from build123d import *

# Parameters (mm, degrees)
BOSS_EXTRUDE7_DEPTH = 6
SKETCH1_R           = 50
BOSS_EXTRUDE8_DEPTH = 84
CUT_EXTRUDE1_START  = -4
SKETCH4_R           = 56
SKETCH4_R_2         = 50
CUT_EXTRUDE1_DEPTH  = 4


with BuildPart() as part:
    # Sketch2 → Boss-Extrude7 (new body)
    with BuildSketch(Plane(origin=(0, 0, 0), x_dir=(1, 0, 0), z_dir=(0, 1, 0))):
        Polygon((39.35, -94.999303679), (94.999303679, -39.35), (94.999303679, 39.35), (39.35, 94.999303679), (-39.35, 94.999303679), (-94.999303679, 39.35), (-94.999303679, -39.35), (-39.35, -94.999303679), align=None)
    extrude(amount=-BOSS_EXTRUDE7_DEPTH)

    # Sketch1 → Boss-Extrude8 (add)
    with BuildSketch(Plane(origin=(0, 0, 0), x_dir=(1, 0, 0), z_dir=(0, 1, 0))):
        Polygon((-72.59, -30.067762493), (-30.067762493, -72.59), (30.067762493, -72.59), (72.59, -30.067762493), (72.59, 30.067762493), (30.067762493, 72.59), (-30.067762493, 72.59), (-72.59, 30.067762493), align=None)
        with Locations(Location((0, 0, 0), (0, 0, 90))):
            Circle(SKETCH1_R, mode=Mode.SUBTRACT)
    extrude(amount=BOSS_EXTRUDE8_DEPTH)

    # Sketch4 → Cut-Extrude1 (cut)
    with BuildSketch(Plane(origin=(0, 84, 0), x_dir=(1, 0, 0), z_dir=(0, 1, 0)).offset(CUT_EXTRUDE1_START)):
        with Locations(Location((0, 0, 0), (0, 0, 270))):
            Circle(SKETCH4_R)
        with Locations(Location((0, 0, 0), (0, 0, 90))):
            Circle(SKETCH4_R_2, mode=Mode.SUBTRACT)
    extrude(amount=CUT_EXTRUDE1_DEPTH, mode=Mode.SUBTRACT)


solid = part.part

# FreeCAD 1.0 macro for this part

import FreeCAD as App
import Part
import Sketcher
from FreeCAD import Vector

doc = App.newDocument("Part")
body = doc.addObject("PartDesign::Body", "Body")

sketch1 = body.newObject("Sketcher::SketchObject", "Sketch")
sketch1.AttachmentSupport = (doc.getObject("XZ_Plane"), [""])
sketch1.MapMode = "FlatFace"
sketch1.addGeometry([
    Part.LineSegment(Vector(39, 95, 0), Vector(95, 39, 0)),
    Part.LineSegment(Vector(95, 39, 0), Vector(95, -39, 0)),
    Part.LineSegment(Vector(95, -39, 0), Vector(39, -95, 0)),
    Part.LineSegment(Vector(39, -95, 0), Vector(-39, -95, 0)),
    Part.LineSegment(Vector(-39, -95, 0), Vector(-95, -39, 0)),
    Part.LineSegment(Vector(-95, -39, 0), Vector(-95, 39, 0)),
    Part.LineSegment(Vector(-95, 39, 0), Vector(-39, 95, 0)),
    Part.LineSegment(Vector(-39, 95, 0), Vector(39, 95, 0)),
], False)
sketch1.addConstraint([
    Sketcher.Constraint("Coincident", 0, 2, 1, 1),
    Sketcher.Constraint("Coincident", 1, 2, 2, 1),
    Sketcher.Constraint("Coincident", 2, 2, 3, 1),
    Sketcher.Constraint("Coincident", 3, 2, 4, 1),
    Sketcher.Constraint("Coincident", 4, 2, 5, 1),
    Sketcher.Constraint("Coincident", 5, 2, 6, 1),
    Sketcher.Constraint("Coincident", 6, 2, 7, 1),
    Sketcher.Constraint("Coincident", 7, 2, 0, 1),
    Sketcher.Constraint("Vertical", 1),
    Sketcher.Constraint("Horizontal", 3),
    Sketcher.Constraint("Vertical", 5),
    Sketcher.Constraint("Horizontal", 7),
    Sketcher.Constraint("Symmetric", 0, 2, 4, 2, -1, 1),
    Sketcher.Constraint("Symmetric", 2, 2, 6, 2, -1, 1),
    Sketcher.Constraint("Perpendicular", 0, 2),
    Sketcher.Constraint("Perpendicular", 2, 4),
    Sketcher.Constraint("Perpendicular", 4, 6),
    Sketcher.Constraint("Horizontal", 1, 2, 4, 2),
    Sketcher.Constraint("Vertical", 3, 2, 6, 2),
    Sketcher.Constraint("Equal", 7, 1),
    Sketcher.Constraint("DistanceX", 3, 2, 3, 1, 78.7),
    Sketcher.Constraint("Distance", 0, 78.7),
])
pad1 = body.newObject("PartDesign::Pad", "Pad")
pad1.Profile = sketch1
pad1.Length = 6

sketch2 = body.newObject("Sketcher::SketchObject", "Sketch001")
sketch2.AttachmentSupport = (doc.getObject("XZ_Plane"), [""])
sketch2.MapMode = "FlatFace"
sketch2.addGeometry([
    Part.LineSegment(Vector(-73, 30, 0), Vector(-30, 73, 0)),
    Part.LineSegment(Vector(-30, 73, 0), Vector(30, 73, 0)),
    Part.LineSegment(Vector(30, 73, 0), Vector(73, 30, 0)),
    Part.LineSegment(Vector(73, 30, 0), Vector(73, -30, 0)),
    Part.LineSegment(Vector(73, -30, 0), Vector(30, -73, 0)),
    Part.LineSegment(Vector(30, -73, 0), Vector(-30, -73, 0)),
    Part.LineSegment(Vector(-30, -73, 0), Vector(-73, -30, 0)),
    Part.LineSegment(Vector(-73, -30, 0), Vector(-73, 30, 0)),
    Part.Circle(Vector(0, 0, 0), Vector(0, 0, 1), 50),
], False)
sketch2.addConstraint([
    Sketcher.Constraint("Coincident", 0, 2, 1, 1),
    Sketcher.Constraint("Coincident", 1, 2, 2, 1),
    Sketcher.Constraint("Coincident", 2, 2, 3, 1),
    Sketcher.Constraint("Coincident", 3, 2, 4, 1),
    Sketcher.Constraint("Coincident", 4, 2, 5, 1),
    Sketcher.Constraint("Coincident", 5, 2, 6, 1),
    Sketcher.Constraint("Coincident", 6, 2, 7, 1),
    Sketcher.Constraint("Coincident", 7, 2, 0, 1),
    Sketcher.Constraint("Horizontal", 1),
    Sketcher.Constraint("Vertical", 3),
    Sketcher.Constraint("Horizontal", 5),
    Sketcher.Constraint("Vertical", 7),
    Sketcher.Constraint("Coincident", 8, 3, -1, 1),
    Sketcher.Constraint("Symmetric", 0, 2, 4, 2, -1, 1),
    Sketcher.Constraint("Symmetric", 2, 2, 6, 2, -1, 1),
    Sketcher.Constraint("Perpendicular", 0, 2),
    Sketcher.Constraint("Perpendicular", 2, 4),
    Sketcher.Constraint("Perpendicular", 4, 6),
    Sketcher.Constraint("Horizontal", 3, 2, 6, 2),
    Sketcher.Constraint("Vertical", 1, 2, 4, 2),
    Sketcher.Constraint("Equal", 5, 3),
    Sketcher.Constraint("Diameter", 8, 100.0),
    Sketcher.Constraint("DistanceY", -1, 1, 0, 2, 72.59),
    Sketcher.Constraint("DistanceX", 1, 1, 1, 2, 60.135525),
])
pad2 = body.newObject("PartDesign::Pad", "Pad001")
pad2.Profile = sketch2
pad2.Length = 84
pad2.Reversed = True

sketch3 = body.newObject("Sketcher::SketchObject", "Sketch002")
sketch3.AttachmentSupport = (doc.getObject("XZ_Plane"), [""])
sketch3.MapMode = "FlatFace"
sketch3.AttachmentOffset = App.Placement(Vector(0, 0, -80), App.Rotation())
sketch3.addGeometry([
    Part.Circle(Vector(0, 0, 0), Vector(0, 0, 1), 56),
    Part.Circle(Vector(0, 0, 0), Vector(0, 0, 1), 50),
], False)
sketch3.addConstraint([
    Sketcher.Constraint("Coincident", 0, 3, -1, 1),
    Sketcher.Constraint("Coincident", 1, 3, -1, 1),
    Sketcher.Constraint("Diameter", 0, 112.0),
    Sketcher.Constraint("Diameter", 1, 100.0),
])
pocket1 = body.newObject("PartDesign::Pocket", "Pocket")
pocket1.Profile = sketch3
pocket1.Length = 4

doc.recompute()
